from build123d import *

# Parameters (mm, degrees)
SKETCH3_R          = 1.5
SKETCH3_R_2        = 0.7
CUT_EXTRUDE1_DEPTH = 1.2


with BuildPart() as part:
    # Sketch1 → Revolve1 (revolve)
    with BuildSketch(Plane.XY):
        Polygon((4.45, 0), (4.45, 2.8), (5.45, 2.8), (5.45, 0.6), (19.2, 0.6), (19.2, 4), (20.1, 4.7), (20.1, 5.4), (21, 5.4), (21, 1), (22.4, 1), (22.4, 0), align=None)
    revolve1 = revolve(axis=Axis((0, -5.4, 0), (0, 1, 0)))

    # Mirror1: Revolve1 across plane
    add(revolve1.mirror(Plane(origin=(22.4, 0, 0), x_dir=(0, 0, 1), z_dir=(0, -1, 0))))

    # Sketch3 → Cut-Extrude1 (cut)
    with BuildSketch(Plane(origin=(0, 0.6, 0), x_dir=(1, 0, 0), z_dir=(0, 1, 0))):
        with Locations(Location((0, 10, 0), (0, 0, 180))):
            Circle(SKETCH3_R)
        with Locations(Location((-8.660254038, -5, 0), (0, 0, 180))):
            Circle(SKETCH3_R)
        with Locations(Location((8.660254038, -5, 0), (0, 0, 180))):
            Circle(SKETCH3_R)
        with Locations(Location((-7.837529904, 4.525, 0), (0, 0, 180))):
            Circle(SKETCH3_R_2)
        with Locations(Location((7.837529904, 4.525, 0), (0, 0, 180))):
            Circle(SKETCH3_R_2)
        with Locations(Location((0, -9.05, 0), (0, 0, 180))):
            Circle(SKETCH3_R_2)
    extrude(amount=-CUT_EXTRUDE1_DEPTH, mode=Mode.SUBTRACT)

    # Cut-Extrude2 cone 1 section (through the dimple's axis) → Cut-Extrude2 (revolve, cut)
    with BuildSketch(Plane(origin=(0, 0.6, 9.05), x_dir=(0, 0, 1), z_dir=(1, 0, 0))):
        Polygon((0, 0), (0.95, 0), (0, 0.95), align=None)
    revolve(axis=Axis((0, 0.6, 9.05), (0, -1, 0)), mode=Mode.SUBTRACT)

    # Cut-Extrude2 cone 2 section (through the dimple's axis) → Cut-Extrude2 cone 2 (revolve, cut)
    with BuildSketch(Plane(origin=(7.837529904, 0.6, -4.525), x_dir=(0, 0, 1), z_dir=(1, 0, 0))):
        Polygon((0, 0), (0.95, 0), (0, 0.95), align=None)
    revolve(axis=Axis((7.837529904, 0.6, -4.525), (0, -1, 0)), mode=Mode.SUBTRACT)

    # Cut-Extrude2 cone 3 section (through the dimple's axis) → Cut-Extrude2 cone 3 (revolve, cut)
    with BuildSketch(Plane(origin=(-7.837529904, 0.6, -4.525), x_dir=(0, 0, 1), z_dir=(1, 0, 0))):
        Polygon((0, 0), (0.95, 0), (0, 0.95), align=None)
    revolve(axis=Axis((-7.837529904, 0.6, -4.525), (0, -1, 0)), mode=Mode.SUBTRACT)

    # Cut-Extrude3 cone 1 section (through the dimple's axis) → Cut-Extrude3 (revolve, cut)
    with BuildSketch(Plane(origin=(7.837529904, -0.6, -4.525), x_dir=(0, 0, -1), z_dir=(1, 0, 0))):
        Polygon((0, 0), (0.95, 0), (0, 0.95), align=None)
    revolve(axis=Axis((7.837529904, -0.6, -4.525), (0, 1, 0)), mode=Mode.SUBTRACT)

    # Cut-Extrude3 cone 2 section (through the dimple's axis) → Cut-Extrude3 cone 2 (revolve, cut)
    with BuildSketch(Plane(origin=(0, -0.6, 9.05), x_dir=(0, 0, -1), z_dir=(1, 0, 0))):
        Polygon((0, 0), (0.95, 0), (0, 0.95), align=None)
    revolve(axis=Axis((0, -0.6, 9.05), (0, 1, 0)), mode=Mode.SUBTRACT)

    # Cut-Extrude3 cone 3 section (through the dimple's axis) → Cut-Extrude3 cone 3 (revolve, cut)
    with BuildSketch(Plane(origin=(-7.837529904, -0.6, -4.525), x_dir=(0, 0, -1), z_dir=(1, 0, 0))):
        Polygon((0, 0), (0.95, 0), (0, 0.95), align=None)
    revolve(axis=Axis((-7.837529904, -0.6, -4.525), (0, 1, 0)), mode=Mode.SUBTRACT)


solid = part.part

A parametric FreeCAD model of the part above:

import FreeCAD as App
import Part
import Sketcher
from FreeCAD import Vector

doc = App.newDocument("Part")
body = doc.addObject("PartDesign::Body", "Body")

# Sketch on XY plane
sketch1 = body.newObject("Sketcher::SketchObject", "Sketch")
sketch1.AttachmentSupport = (doc.getObject("XY_Plane"), [""])
sketch1.MapMode = "FlatFace"
sketch1.addGeometry(Part.LineSegment(Vector(4.5, 2.8, 0), Vector(4.5, 0, 0)), False)
sketch1.addGeometry(Part.LineSegment(Vector(4.5, 0, 0), Vector(22.4, 0, 0)), False)
sketch1.addGeometry(Part.LineSegment(Vector(22.4, 0, 0), Vector(22.4, 1, 0)), False)
sketch1.addGeometry(Part.LineSegment(Vector(22.4, 1, 0), Vector(21, 1, 0)), False)
sketch1.addGeometry(Part.LineSegment(Vector(21, 1, 0), Vector(21, 5.4, 0)), False)
sketch1.addGeometry(Part.LineSegment(Vector(21, 5.4, 0), Vector(20.1, 5.4, 0)), False)
sketch1.addGeometry(Part.LineSegment(Vector(20.1, 5.4, 0), Vector(20.1, 4.7, 0)), False)
sketch1.addGeometry(Part.LineSegment(Vector(20.1, 4.7, 0), Vector(19.2, 4, 0)), False)
sketch1.addGeometry(Part.LineSegment(Vector(19.2, 4, 0), Vector(19.2, 0.6, 0)), False)
sketch1.addGeometry(Part.LineSegment(Vector(19.2, 0.6, 0), Vector(5.5, 0.6, 0)), False)
sketch1.addGeometry(Part.LineSegment(Vector(5.5, 0.6, 0), Vector(5.5, 2.8, 0)), False)
sketch1.addGeometry(Part.LineSegment(Vector(5.5, 2.8, 0), Vector(4.5, 2.8, 0)), False)
sketch1.addConstraint(Sketcher.Constraint("Coincident", 0, 2, 1, 1))
sketch1.addConstraint(Sketcher.Constraint("Coincident", 1, 2, 2, 1))
sketch1.addConstraint(Sketcher.Constraint("Coincident", 2, 2, 3, 1))
sketch1.addConstraint(Sketcher.Constraint("Coincident", 3, 2, 4, 1))
sketch1.addConstraint(Sketcher.Constraint("Coincident", 4, 2, 5, 1))
sketch1.addConstraint(Sketcher.Constraint("Coincident", 5, 2, 6, 1))
sketch1.addConstraint(Sketcher.Constraint("Coincident", 6, 2, 7, 1))
sketch1.addConstraint(Sketcher.Constraint("Coincident", 7, 2, 8, 1))
sketch1.addConstraint(Sketcher.Constraint("Coincident", 8, 2, 9, 1))
sketch1.addConstraint(Sketcher.Constraint("Coincident", 9, 2, 10, 1))
sketch1.addConstraint(Sketcher.Constraint("Coincident", 10, 2, 11, 1))
sketch1.addConstraint(Sketcher.Constraint("Coincident", 11, 2, 0, 1))
sketch1.addConstraint(Sketcher.Constraint("Vertical", 0))
sketch1.addConstraint(Sketcher.Constraint("Horizontal", 1))
sketch1.addConstraint(Sketcher.Constraint("Vertical", 2))
sketch1.addConstraint(Sketcher.Constraint("Horizontal", 3))
sketch1.addConstraint(Sketcher.Constraint("Vertical", 4))
sketch1.addConstraint(Sketcher.Constraint("Horizontal", 5))
sketch1.addConstraint(Sketcher.Constraint("Vertical", 6))
sketch1.addConstraint(Sketcher.Constraint("Vertical", 8))
sketch1.addConstraint(Sketcher.Constraint("Horizontal", 9))
sketch1.addConstraint(Sketcher.Constraint("Vertical", 10))
sketch1.addConstraint(Sketcher.Constraint("Horizontal", 11))
sketch1.addConstraint(Sketcher.Constraint("PointOnObject", 0, 2, -1))
sketch1.addConstraint(Sketcher.Constraint("Equal", 11, 2))
sketch1.addConstraint(Sketcher.Constraint("DistanceX", 11, 2, 11, 1, 1.0))
sketch1.addConstraint(Sketcher.Constraint("DistanceX", 3, 2, 3, 1, 1.4))
sketch1.addConstraint(Sketcher.Constraint("DistanceX", 5, 2, 5, 1, 0.9))
sketch1.addConstraint(Sketcher.Constraint("DistanceY", 0, 2, 0, 1, 2.8))
sketch1.addConstraint(Sketcher.Constraint("DistanceY", 4, 1, 4, 2, 4.4))
sketch1.addConstraint(Sketcher.Constraint("DistanceY", 6, 2, 6, 1, 0.7))
sketch1.addConstraint(Sketcher.Constraint("DistanceY", 8, 2, 8, 1, 3.4))
sketch1.addConstraint(Sketcher.Constraint("DistanceY", 10, 1, 10, 2, 2.2))
sketch1.addConstraint(Sketcher.Constraint("DistanceX", -1, 1, 3, 2, 21.0))
sketch1.addConstraint(Sketcher.Constraint("DistanceX", 1, 1, 1, 2, 17.95))
sketch1.addConstraint(Sketcher.Constraint("DistanceX", 9, 2, 9, 1, 13.75))
revolution = body.newObject("PartDesign::Revolution", "Revolution")
revolution.Profile = sketch1
revolution.ReferenceAxis = (sketch1, ["V_Axis"])
revolution.Angle = 360
doc.recompute()

mirrored = body.newObject("PartDesign::Mirrored", "Mirrored")
mirrored.Originals = [revolution]
mirrored.MirrorPlane = (doc.getObject("XZ_Plane"), [""])
body.Tip = mirrored

# Sketch on XZ plane
sketch2 = body.newObject("Sketcher::SketchObject", "Sketch001")
sketch2.AttachmentSupport = (doc.getObject("XZ_Plane"), [""])
sketch2.MapMode = "FlatFace"
sketch2.AttachmentOffset = App.Placement(Vector(0, 0, -0.6), App.Rotation())
sketch2.addGeometry(Part.Circle(Vector(0, -10, 0), Vector(0, 0, 1), 1.5), False)
sketch2.addGeometry(Part.Circle(Vector(-8.7, 5, 0), Vector(0, 0, 1), 1.5), False)
sketch2.addGeometry(Part.Circle(Vector(8.7, 5, 0), Vector(0, 0, 1), 1.5), False)
sketch2.addGeometry(Part.Circle(Vector(-7.8, -4.5, 0), Vector(0, 0, 1), 0.7), False)
sketch2.addGeometry(Part.Circle(Vector(7.8, -4.5, 0), Vector(0, 0, 1), 0.7), False)
sketch2.addGeometry(Part.Circle(Vector(0, 9.1, 0), Vector(0, 0, 1), 0.7), False)
sketch2.addConstraint(Sketcher.Constraint("Equal", 0, 1))
sketch2.addConstraint(Sketcher.Constraint("Equal", 1, 2))
sketch2.addConstraint(Sketcher.Constraint("Equal", 3, 4))
sketch2.addConstraint(Sketcher.Constraint("Equal", 4, 5))
sketch2.addConstraint(Sketcher.Constraint("Symmetric", 1, 3, 2, 3, -2))
sketch2.addConstraint(Sketcher.Constraint("Symmetric", 3, 3, 4, 3, -2))
sketch2.addConstraint(Sketcher.Constraint("PointOnObject", 0, 3, -2))
sketch2.addConstraint(Sketcher.Constraint("PointOnObject", 5, 3, -2))
sketch2.addConstraint(Sketcher.Constraint("Diameter", 0, 3.0))
sketch2.addConstraint(Sketcher.Constraint("Diameter", 3, 1.4))
sketch2.addConstraint(Sketcher.Constraint("DistanceY", 0, 3, -1, 1, 10.0))
sketch2.addConstraint(Sketcher.Constraint("DistanceY", -1, 1, 1, 3, 5.0))
sketch2.addConstraint(Sketcher.Constraint("DistanceY", -1, 1, 5, 3, 9.05))
sketch2.addConstraint(Sketcher.Constraint("DistanceY", 3, 3, -1, 1, 4.525))
sketch2.addConstraint(Sketcher.Constraint("DistanceX", 3, 3, -1, 1, 7.83753))
sketch2.addConstraint(Sketcher.Constraint("DistanceX", 1, 3, 2, 3, 17.320508))
pocket1 = body.newObject("PartDesign::Pocket", "Pocket")
pocket1.Profile = sketch2
pocket1.Length = 1.2
pocket1.Reversed = True

# Sketch on YZ plane
sketch3 = body.newObject("Sketcher::SketchObject", "Sketch002")
sketch3.AttachmentSupport = (doc.getObject("YZ_Plane"), [""])
sketch3.MapMode = "FlatFace"
sketch3.addGeometry(Part.LineSegment(Vector(0.6, 9.1, 0), Vector(0.6, 10, 0)), False)
sketch3.addGeometry(Part.LineSegment(Vector(0.6, 10, 0), Vector(-0.3, 9.1, 0)), False)
sketch3.addGeometry(Part.LineSegment(Vector(-0.3, 9.1, 0), Vector(0.6, 9.1, 0)), False)
sketch3.addGeometry(Part.LineSegment(Vector(0.6, 9.1, 0), Vector(-0.3, 9.1, 0)), True)  # axis
sketch3.addConstraint(Sketcher.Constraint("Coincident", 0, 2, 1, 1))
sketch3.addConstraint(Sketcher.Constraint("Coincident", 1, 2, 2, 1))
sketch3.addConstraint(Sketcher.Constraint("Coincident", 2, 2, 0, 1))
sketch3.addConstraint(Sketcher.Constraint("Vertical", 0))
sketch3.addConstraint(Sketcher.Constraint("Horizontal", 2))
sketch3.addConstraint(Sketcher.Constraint("Horizontal", 3))
sketch3.addConstraint(Sketcher.Constraint("Coincident", 3, 1, 2, 2))
sketch3.addConstraint(Sketcher.Constraint("Equal", 2, 3))
sketch3.addConstraint(Sketcher.Constraint("Equal", 3, 0))
sketch3.addConstraint(Sketcher.Constraint("DistanceY", -1, 1, 0, 2, 10.0))
sketch3.addConstraint(Sketcher.Constraint("DistanceX", 2, 1, 2, 2, 0.95))
sketch3.addConstraint(Sketcher.Constraint("DistanceX", -1, 1, 0, 2, 0.6))
groove = body.newObject("PartDesign::Groove", "Groove")
groove.Profile = sketch3
groove.ReferenceAxis = (sketch3, ["Axis0"])
groove.Angle = 360

# Sketch on YZ plane
sketch4 = body.newObject("Sketcher::SketchObject", "Sketch003")
sketch4.AttachmentSupport = (doc.getObject("YZ_Plane"), [""])
sketch4.MapMode = "FlatFace"
sketch4.AttachmentOffset = App.Placement(Vector(0, 0, 7.83753), App.Rotation())
sketch4.addGeometry(Part.LineSegment(Vector(0.6, -4.5, 0), Vector(0.6, -3.6, 0)), False)
sketch4.addGeometry(Part.LineSegment(Vector(0.6, -3.6, 0), Vector(-0.3, -4.5, 0)), False)
sketch4.addGeometry(Part.LineSegment(Vector(-0.3, -4.5, 0), Vector(0.6, -4.5, 0)), False)
sketch4.addGeometry(Part.LineSegment(Vector(0.6, -4.5, 0), Vector(-0.3, -4.5, 0)), True)  # axis
sketch4.addConstraint(Sketcher.Constraint("Coincident", 0, 2, 1, 1))
sketch4.addConstraint(Sketcher.Constraint("Coincident", 1, 2, 2, 1))
sketch4.addConstraint(Sketcher.Constraint("Coincident", 2, 2, 0, 1))
sketch4.addConstraint(Sketcher.Constraint("Vertical", 0))
sketch4.addConstraint(Sketcher.Constraint("Horizontal", 2))
sketch4.addConstraint(Sketcher.Constraint("Horizontal", 3))
sketch4.addConstraint(Sketcher.Constraint("Coincident", 3, 1, 2, 2))
sketch4.addConstraint(Sketcher.Constraint("Equal", 2, 3))
sketch4.addConstraint(Sketcher.Constraint("Equal", 3, 0))
sketch4.addConstraint(Sketcher.Constraint("DistanceX", 2, 1, 2, 2, 0.95))
sketch4.addConstraint(Sketcher.Constraint("DistanceX", -1, 1, 0, 2, 0.6))
sketch4.addConstraint(Sketcher.Constraint("DistanceY", 0, 2, -1, 1, 3.575))
groove2 = body.newObject("PartDesign::Groove", "Groove001")
groove2.Profile = sketch4
groove2.ReferenceAxis = (sketch4, ["Axis0"])
groove2.Angle = 360

# Sketch on YZ plane
sketch5 = body.newObject("Sketcher::SketchObject", "Sketch004")
sketch5.AttachmentSupport = (doc.getObject("YZ_Plane"), [""])
sketch5.MapMode = "FlatFace"
sketch5.AttachmentOffset = App.Placement(Vector(0, 0, -7.83753), App.Rotation())
sketch5.addGeometry(Part.LineSegment(Vector(0.6, -4.5, 0), Vector(0.6, -3.6, 0)), False)
sketch5.addGeometry(Part.LineSegment(Vector(0.6, -3.6, 0), Vector(-0.3, -4.5, 0)), False)
sketch5.addGeometry(Part.LineSegment(Vector(-0.3, -4.5, 0), Vector(0.6, -4.5, 0)), False)
sketch5.addGeometry(Part.LineSegment(Vector(0.6, -4.5, 0), Vector(-0.3, -4.5, 0)), True)  # axis
sketch5.addConstraint(Sketcher.Constraint("Coincident", 0, 2, 1, 1))
sketch5.addConstraint(Sketcher.Constraint("Coincident", 1, 2, 2, 1))
sketch5.addConstraint(Sketcher.Constraint("Coincident", 2, 2, 0, 1))
sketch5.addConstraint(Sketcher.Constraint("Vertical", 0))
sketch5.addConstraint(Sketcher.Constraint("Horizontal", 2))
sketch5.addConstraint(Sketcher.Constraint("Horizontal", 3))
sketch5.addConstraint(Sketcher.Constraint("Coincident", 3, 1, 2, 2))
sketch5.addConstraint(Sketcher.Constraint("Equal", 2, 3))
sketch5.addConstraint(Sketcher.Constraint("Equal", 3, 0))
sketch5.addConstraint(Sketcher.Constraint("DistanceX", 2, 1, 2, 2, 0.95))
sketch5.addConstraint(Sketcher.Constraint("DistanceX", -1, 1, 0, 2, 0.6))
sketch5.addConstraint(Sketcher.Constraint("DistanceY", 0, 2, -1, 1, 3.575))
groove3 = body.newObject("PartDesign::Groove", "Groove002")
groove3.Profile = sketch5
groove3.ReferenceAxis = (sketch5, ["Axis0"])
groove3.Angle = 360

# Sketch on YZ plane
sketch6 = body.newObject("Sketcher::SketchObject", "Sketch005")
sketch6.AttachmentSupport = (doc.getObject("YZ_Plane"), [""])
sketch6.MapMode = "FlatFace"
sketch6.AttachmentOffset = App.Placement(Vector(0, 0, 7.83753), App.Rotation())
sketch6.addGeometry(Part.LineSegment(Vector(-0.6, -4.5, 0), Vector(-0.6, -5.5, 0)), False)
sketch6.addGeometry(Part.LineSegment(Vector(-0.6, -5.5, 0), Vector(0.3, -4.5, 0)), False)
sketch6.addGeometry(Part.LineSegment(Vector(0.3, -4.5, 0), Vector(-0.6, -4.5, 0)), False)
sketch6.addGeometry(Part.LineSegment(Vector(-0.6, -4.5, 0), Vector(0.3, -4.5, 0)), True)  # axis
sketch6.addConstraint(Sketcher.Constraint("Coincident", 0, 2, 1, 1))
sketch6.addConstraint(Sketcher.Constraint("Coincident", 1, 2, 2, 1))
sketch6.addConstraint(Sketcher.Constraint("Coincident", 2, 2, 0, 1))
sketch6.addConstraint(Sketcher.Constraint("Vertical", 0))
sketch6.addConstraint(Sketcher.Constraint("Horizontal", 2))
sketch6.addConstraint(Sketcher.Constraint("Horizontal", 3))
sketch6.addConstraint(Sketcher.Constraint("Coincident", 3, 1, 2, 2))
sketch6.addConstraint(Sketcher.Constraint("Equal", 2, 3))
sketch6.addConstraint(Sketcher.Constraint("Equal", 3, 0))
sketch6.addConstraint(Sketcher.Constraint("DistanceX", 2, 2, 2, 1, 0.95))
sketch6.addConstraint(Sketcher.Constraint("DistanceX", 0, 2, -1, 1, 0.6))
sketch6.addConstraint(Sketcher.Constraint("DistanceY", 0, 2, -1, 1, 5.475))
groove4 = body.newObject("PartDesign::Groove", "Groove003")
groove4.Profile = sketch6
groove4.ReferenceAxis = (sketch6, ["Axis0"])
groove4.Angle = 360

# Sketch on YZ plane
sketch7 = body.newObject("Sketcher::SketchObject", "Sketch006")
sketch7.AttachmentSupport = (doc.getObject("YZ_Plane"), [""])
sketch7.MapMode = "FlatFace"
sketch7.addGeometry(Part.LineSegment(Vector(-0.6, 9.1, 0), Vector(-0.6, 8.1, 0)), False)
sketch7.addGeometry(Part.LineSegment(Vector(-0.6, 8.1, 0), Vector(0.3, 9.1, 0)), False)
sketch7.addGeometry(Part.LineSegment(Vector(0.3, 9.1, 0), Vector(-0.6, 9.1, 0)), False)
sketch7.addGeometry(Part.LineSegment(Vector(-0.6, 9.1, 0), Vector(0.3, 9.1, 0)), True)  # axis
sketch7.addConstraint(Sketcher.Constraint("Coincident", 0, 2, 1, 1))
sketch7.addConstraint(Sketcher.Constraint("Coincident", 1, 2, 2, 1))
sketch7.addConstraint(Sketcher.Constraint("Coincident", 2, 2, 0, 1))
sketch7.addConstraint(Sketcher.Constraint("Vertical", 0))
sketch7.addConstraint(Sketcher.Constraint("Horizontal", 2))
sketch7.addConstraint(Sketcher.Constraint("Horizontal", 3))
sketch7.addConstraint(Sketcher.Constraint("Coincident", 3, 1, 2, 2))
sketch7.addConstraint(Sketcher.Constraint("Equal", 2, 3))
sketch7.addConstraint(Sketcher.Constraint("Equal", 3, 0))
sketch7.addConstraint(Sketcher.Constraint("DistanceX", 2, 2, 2, 1, 0.95))
sketch7.addConstraint(Sketcher.Constraint("DistanceX", 0, 2, -1, 1, 0.6))
sketch7.addConstraint(Sketcher.Constraint("DistanceY", -1, 1, 0, 2, 8.1))
groove5 = body.newObject("PartDesign::Groove", "Groove004")
groove5.Profile = sketch7
groove5.ReferenceAxis = (sketch7, ["Axis0"])
groove5.Angle = 360

# Sketch on YZ plane
sketch8 = body.newObject("Sketcher::SketchObject", "Sketch007")
sketch8.AttachmentSupport = (doc.getObject("YZ_Plane"), [""])
sketch8.MapMode = "FlatFace"
sketch8.AttachmentOffset = App.Placement(Vector(0, 0, -7.83753), App.Rotation())
sketch8.addGeometry(Part.LineSegment(Vector(-0.6, -4.5, 0), Vector(-0.6, -5.5, 0)), False)
sketch8.addGeometry(Part.LineSegment(Vector(-0.6, -5.5, 0), Vector(0.3, -4.5, 0)), False)
sketch8.addGeometry(Part.LineSegment(Vector(0.3, -4.5, 0), Vector(-0.6, -4.5, 0)), False)
sketch8.addGeometry(Part.LineSegment(Vector(-0.6, -4.5, 0), Vector(0.3, -4.5, 0)), True)  # axis
sketch8.addConstraint(Sketcher.Constraint("Coincident", 0, 2, 1, 1))
sketch8.addConstraint(Sketcher.Constraint("Coincident", 1, 2, 2, 1))
sketch8.addConstraint(Sketcher.Constraint("Coincident", 2, 2, 0, 1))
sketch8.addConstraint(Sketcher.Constraint("Vertical", 0))
sketch8.addConstraint(Sketcher.Constraint("Horizontal", 2))
sketch8.addConstraint(Sketcher.Constraint("Horizontal", 3))
sketch8.addConstraint(Sketcher.Constraint("Coincident", 3, 1, 2, 2))
sketch8.addConstraint(Sketcher.Constraint("Equal", 2, 3))
sketch8.addConstraint(Sketcher.Constraint("Equal", 3, 0))
sketch8.addConstraint(Sketcher.Constraint("DistanceX", 2, 2, 2, 1, 0.95))
sketch8.addConstraint(Sketcher.Constraint("DistanceX", 0, 2, -1, 1, 0.6))
sketch8.addConstraint(Sketcher.Constraint("DistanceY", 0, 2, -1, 1, 5.475))
groove6 = body.newObject("PartDesign::Groove", "Groove005")
groove6.Profile = sketch8
groove6.ReferenceAxis = (sketch8, ["Axis0"])
groove6.Angle = 360

doc.recompute()
